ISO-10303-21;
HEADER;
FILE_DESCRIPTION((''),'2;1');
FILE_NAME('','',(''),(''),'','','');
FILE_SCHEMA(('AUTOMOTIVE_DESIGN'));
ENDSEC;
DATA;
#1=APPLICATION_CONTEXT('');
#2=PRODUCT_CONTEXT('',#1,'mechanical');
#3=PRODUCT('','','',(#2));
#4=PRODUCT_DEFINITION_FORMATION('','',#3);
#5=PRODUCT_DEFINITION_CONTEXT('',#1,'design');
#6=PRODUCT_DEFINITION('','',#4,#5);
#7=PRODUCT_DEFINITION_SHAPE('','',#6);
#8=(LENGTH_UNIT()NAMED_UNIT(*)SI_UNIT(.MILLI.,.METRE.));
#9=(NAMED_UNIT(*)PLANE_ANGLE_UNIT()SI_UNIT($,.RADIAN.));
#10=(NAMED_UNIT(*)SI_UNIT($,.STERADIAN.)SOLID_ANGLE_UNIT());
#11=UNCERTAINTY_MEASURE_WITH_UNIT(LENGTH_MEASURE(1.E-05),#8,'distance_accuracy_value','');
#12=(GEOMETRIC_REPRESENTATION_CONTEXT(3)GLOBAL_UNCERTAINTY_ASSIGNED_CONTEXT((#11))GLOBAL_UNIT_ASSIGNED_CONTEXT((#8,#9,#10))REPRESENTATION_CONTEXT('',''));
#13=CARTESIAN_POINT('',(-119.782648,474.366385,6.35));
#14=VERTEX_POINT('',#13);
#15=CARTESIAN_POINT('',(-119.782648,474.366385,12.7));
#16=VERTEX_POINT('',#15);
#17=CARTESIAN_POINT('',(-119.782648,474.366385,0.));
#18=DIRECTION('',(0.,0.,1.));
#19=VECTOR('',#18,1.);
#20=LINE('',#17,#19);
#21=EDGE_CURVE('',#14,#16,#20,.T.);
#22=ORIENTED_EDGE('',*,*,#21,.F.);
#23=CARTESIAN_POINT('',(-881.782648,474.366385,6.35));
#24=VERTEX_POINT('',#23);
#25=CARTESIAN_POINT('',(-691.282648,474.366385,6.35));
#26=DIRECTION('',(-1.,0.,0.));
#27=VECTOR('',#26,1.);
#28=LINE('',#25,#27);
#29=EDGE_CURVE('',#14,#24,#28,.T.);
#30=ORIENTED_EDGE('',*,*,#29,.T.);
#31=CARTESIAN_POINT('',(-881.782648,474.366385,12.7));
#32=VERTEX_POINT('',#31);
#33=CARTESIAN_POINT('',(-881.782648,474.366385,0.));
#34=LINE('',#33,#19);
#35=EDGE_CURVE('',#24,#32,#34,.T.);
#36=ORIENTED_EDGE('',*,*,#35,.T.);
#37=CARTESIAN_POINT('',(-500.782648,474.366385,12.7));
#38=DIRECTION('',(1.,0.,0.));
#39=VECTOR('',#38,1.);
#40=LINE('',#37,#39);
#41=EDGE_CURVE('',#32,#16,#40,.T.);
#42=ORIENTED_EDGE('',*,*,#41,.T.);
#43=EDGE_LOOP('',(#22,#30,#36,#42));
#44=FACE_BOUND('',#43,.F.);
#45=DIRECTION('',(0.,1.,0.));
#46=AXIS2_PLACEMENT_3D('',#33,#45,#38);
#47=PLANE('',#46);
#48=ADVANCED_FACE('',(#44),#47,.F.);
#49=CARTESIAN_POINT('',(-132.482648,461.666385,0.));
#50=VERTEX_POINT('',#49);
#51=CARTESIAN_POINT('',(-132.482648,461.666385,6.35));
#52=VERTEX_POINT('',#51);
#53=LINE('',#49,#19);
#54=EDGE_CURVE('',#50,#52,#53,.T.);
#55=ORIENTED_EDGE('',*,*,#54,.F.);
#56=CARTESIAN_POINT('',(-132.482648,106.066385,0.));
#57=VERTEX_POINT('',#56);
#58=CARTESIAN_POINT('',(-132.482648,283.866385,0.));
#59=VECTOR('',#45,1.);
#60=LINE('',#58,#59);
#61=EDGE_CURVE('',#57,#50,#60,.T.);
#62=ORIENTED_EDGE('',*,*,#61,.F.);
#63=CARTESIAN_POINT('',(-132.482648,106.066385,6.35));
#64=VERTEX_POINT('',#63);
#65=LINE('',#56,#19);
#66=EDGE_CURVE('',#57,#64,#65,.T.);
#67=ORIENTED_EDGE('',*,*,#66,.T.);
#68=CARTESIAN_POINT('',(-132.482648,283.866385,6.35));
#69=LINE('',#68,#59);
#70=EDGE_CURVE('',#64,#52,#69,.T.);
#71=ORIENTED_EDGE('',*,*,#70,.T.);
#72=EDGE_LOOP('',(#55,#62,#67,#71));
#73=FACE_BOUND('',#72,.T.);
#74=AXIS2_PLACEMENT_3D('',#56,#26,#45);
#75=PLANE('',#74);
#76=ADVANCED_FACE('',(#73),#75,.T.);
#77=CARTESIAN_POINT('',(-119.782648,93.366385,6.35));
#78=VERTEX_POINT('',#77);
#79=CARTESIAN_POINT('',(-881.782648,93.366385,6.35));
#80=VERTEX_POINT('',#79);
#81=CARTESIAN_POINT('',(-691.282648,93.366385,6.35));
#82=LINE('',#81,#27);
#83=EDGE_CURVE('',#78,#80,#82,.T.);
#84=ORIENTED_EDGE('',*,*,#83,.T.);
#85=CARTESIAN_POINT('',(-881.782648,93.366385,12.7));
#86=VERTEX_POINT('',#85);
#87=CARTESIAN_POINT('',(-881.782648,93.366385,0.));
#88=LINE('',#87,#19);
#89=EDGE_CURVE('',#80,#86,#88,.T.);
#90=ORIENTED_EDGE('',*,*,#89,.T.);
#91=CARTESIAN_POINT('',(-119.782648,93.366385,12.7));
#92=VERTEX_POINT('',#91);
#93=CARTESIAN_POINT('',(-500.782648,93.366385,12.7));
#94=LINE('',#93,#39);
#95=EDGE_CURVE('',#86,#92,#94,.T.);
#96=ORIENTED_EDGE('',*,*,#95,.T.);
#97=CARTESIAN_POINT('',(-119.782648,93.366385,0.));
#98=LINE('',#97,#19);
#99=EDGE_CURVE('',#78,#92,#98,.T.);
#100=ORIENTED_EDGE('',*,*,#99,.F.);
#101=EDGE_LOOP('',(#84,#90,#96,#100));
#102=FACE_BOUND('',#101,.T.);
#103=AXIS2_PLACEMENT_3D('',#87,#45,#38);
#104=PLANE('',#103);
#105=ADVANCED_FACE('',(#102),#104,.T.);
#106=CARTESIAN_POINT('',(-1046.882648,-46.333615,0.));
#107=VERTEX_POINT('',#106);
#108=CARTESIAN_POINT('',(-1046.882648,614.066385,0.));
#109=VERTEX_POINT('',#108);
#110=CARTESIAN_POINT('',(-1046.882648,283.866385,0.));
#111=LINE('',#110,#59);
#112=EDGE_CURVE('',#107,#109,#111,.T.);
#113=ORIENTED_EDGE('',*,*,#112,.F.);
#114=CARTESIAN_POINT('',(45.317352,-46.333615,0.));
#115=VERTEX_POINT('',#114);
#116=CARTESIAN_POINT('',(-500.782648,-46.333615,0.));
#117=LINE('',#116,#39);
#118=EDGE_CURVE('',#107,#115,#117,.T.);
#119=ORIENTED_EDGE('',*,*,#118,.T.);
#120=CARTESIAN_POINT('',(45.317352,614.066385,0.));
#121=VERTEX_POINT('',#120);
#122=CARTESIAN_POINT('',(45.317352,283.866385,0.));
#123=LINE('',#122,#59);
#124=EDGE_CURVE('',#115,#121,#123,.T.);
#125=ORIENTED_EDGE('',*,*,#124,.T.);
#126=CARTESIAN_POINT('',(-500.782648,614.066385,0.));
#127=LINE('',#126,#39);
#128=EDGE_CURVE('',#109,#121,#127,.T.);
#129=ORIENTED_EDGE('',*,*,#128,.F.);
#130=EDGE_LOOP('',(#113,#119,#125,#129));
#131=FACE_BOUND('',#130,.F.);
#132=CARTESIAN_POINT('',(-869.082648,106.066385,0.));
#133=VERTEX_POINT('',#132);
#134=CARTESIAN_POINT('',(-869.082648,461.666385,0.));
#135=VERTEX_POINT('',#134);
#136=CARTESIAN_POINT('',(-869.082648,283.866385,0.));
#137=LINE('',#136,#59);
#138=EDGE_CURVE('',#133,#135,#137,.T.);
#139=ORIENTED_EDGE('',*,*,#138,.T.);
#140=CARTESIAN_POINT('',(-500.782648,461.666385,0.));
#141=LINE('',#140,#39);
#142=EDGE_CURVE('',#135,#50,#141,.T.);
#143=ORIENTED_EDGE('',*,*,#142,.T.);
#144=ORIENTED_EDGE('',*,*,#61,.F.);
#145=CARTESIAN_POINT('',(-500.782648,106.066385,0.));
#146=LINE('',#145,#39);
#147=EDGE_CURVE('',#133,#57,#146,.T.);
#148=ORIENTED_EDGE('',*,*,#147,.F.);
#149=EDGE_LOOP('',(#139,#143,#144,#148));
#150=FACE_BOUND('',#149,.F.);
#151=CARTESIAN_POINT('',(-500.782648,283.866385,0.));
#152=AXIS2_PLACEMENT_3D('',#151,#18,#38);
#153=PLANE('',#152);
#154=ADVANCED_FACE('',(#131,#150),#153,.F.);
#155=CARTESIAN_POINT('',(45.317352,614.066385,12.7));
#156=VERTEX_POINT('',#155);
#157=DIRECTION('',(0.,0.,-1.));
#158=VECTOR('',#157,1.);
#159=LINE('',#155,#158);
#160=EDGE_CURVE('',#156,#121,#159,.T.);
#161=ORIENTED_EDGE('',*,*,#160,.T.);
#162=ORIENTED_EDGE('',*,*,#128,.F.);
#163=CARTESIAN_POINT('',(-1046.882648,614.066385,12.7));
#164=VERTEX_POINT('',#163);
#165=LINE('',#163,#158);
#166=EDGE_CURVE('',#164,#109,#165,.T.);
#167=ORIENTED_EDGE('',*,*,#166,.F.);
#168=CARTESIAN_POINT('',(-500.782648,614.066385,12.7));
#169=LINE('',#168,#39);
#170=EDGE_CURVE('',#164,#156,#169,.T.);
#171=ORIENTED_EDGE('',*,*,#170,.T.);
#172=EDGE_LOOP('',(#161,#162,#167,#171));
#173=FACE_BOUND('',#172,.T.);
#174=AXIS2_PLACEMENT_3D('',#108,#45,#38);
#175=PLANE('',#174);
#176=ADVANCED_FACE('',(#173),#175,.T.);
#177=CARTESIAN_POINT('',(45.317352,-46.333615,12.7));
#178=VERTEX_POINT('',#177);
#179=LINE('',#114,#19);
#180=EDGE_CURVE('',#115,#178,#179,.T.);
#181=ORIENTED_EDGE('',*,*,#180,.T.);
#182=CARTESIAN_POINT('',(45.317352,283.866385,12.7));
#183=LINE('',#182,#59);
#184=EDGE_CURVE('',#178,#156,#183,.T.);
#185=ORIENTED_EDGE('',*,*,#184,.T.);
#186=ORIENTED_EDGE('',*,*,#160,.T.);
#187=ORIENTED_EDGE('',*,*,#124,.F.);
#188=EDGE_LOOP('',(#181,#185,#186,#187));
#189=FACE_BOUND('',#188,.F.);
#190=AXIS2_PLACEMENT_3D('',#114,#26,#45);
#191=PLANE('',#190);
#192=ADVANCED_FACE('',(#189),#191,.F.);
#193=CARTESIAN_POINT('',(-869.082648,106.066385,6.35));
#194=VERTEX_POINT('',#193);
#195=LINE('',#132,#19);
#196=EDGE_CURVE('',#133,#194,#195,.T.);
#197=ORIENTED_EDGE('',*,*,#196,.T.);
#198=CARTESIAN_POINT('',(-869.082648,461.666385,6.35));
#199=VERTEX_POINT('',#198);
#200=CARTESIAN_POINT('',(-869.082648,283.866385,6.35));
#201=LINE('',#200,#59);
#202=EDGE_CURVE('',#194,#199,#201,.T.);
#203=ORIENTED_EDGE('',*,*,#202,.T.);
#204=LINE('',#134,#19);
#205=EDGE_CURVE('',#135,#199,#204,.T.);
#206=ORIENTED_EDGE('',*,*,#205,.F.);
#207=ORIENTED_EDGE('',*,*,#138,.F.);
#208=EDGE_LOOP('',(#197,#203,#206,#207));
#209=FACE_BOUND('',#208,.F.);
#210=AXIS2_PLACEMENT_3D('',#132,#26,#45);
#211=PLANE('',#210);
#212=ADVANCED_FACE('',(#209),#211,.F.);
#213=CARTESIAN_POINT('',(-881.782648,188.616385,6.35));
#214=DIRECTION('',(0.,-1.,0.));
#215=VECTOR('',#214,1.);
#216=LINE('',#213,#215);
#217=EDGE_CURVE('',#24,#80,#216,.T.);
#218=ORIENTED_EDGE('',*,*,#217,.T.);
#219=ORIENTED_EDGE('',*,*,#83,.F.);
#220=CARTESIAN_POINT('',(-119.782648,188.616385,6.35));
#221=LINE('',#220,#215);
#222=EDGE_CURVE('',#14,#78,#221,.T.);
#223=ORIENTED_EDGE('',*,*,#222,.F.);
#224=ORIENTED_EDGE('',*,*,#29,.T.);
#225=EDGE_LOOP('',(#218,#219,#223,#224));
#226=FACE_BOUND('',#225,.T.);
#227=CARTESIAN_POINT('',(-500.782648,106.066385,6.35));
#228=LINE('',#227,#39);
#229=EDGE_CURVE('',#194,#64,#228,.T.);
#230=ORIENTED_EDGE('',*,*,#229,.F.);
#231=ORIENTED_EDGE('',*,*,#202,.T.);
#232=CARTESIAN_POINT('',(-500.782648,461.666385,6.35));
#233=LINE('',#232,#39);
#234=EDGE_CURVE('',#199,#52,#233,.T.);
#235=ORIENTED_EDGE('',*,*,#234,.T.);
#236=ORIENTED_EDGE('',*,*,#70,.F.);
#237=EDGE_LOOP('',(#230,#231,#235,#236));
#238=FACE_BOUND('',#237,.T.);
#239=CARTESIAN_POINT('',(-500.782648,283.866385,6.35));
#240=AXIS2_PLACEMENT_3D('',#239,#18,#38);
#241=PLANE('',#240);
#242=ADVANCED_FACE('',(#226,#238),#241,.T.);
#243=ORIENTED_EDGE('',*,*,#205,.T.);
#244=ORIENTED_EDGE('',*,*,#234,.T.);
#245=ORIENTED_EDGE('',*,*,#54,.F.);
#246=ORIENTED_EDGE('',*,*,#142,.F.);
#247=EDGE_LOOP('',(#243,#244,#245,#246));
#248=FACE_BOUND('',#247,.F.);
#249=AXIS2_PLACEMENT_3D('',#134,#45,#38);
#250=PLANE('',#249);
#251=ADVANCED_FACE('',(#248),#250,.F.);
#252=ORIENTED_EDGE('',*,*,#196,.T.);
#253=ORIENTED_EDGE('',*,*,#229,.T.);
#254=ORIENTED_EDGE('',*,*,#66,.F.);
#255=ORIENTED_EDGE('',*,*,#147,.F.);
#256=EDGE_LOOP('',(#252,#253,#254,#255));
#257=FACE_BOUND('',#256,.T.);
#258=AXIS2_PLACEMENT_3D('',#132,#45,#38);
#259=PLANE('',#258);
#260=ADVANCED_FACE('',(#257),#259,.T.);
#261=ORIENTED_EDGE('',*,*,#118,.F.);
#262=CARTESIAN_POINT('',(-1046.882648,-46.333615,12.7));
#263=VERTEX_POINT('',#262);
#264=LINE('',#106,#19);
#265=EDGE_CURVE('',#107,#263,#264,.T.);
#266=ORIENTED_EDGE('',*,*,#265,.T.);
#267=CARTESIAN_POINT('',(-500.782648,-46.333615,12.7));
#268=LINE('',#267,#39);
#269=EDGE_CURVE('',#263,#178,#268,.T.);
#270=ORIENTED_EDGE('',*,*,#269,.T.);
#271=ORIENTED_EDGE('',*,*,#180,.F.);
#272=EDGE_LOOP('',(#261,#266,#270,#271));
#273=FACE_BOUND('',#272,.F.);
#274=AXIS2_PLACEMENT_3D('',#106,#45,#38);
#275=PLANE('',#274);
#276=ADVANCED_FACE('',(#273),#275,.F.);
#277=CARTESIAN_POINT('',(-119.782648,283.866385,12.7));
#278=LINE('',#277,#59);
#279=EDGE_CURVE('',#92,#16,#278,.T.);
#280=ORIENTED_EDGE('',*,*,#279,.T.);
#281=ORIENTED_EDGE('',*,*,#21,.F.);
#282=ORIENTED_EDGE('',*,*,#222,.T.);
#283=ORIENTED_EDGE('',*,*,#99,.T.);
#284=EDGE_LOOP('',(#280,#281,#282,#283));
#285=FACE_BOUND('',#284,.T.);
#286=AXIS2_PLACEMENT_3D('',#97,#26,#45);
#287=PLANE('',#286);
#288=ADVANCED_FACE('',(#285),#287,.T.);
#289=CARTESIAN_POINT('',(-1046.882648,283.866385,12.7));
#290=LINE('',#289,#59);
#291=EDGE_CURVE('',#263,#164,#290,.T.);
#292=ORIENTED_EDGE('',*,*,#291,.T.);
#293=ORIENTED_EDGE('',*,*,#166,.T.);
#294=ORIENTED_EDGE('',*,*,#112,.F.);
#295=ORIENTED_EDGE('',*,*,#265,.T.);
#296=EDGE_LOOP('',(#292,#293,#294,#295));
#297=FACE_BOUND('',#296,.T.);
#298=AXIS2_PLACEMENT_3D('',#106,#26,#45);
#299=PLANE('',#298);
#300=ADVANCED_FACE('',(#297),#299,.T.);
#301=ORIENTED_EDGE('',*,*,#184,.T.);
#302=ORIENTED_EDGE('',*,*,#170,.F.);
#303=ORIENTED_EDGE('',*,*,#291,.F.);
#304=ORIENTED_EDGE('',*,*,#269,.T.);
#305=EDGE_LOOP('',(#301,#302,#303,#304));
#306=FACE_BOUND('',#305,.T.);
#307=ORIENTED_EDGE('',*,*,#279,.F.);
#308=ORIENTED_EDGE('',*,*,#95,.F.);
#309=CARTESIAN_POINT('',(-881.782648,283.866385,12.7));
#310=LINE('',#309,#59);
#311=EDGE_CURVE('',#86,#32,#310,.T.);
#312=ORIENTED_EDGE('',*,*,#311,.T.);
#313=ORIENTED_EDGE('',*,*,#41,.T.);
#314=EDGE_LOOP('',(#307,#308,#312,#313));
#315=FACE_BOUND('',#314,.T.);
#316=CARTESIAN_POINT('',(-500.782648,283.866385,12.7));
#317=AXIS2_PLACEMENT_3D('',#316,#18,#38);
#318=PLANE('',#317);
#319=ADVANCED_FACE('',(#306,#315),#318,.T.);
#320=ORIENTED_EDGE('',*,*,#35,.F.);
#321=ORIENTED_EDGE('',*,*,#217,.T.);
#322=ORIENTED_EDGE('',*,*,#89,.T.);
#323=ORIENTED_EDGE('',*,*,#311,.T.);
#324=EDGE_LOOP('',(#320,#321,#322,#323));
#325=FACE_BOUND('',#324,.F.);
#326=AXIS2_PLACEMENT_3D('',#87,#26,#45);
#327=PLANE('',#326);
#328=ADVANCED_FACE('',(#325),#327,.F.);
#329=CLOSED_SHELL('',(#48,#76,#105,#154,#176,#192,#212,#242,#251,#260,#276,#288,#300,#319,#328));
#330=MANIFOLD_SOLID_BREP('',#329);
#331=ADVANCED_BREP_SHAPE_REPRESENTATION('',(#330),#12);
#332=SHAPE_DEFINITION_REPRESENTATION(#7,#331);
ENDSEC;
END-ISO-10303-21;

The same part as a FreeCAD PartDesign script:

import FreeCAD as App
import Part
import Sketcher
from FreeCAD import Vector
Q = App.Units.Quantity


def add_polygon(sketch, points):
    """Adds a closed chain of lines whose ends are joined by coincident constraints."""
    first, n = sketch.GeometryCount, len(points)
    for a, b in zip(points, points[1:] + points[:1]):
        sketch.addGeometry(Part.LineSegment(App.Vector(*a, 0), App.Vector(*b, 0)), False)
    for i in range(n):
        sketch.addConstraint(Sketcher.Constraint("Coincident", first + i, 2, first + (i + 1) % n, 1))

doc = App.newDocument("Part")
body = doc.addObject("PartDesign::Body", "Body")

sketch1 = body.newObject("Sketcher::SketchObject", "Sketch")
sketch1.AttachmentSupport = (doc.getObject("XY_Plane"), [""])
sketch1.MapMode = "FlatFace"
add_polygon(sketch1, [(-1046.882648, 614.066385), (-1046.882648, -46.333615), (45.317352, -46.333615), (45.317352, 614.066385)])
add_polygon(sketch1, [(-132.482648, 106.066385), (-869.082648, 106.066385), (-869.082648, 461.666385), (-132.482648, 461.666385)])
sketch1.addConstraint([
    Sketcher.Constraint("Vertical", 0),
    Sketcher.Constraint("Horizontal", 1),
    Sketcher.Constraint("Vertical", 2),
    Sketcher.Constraint("Horizontal", 3),
    Sketcher.Constraint("Horizontal", 4),
    Sketcher.Constraint("Vertical", 5),
    Sketcher.Constraint("Horizontal", 6),
    Sketcher.Constraint("Vertical", 7),
    Sketcher.Constraint("DistanceX", 1, 1, 1, 2, Q("43 in")),
    Sketcher.Constraint("DistanceX", 4, 2, 4, 1, Q("29 in")),
    Sketcher.Constraint("DistanceY", 0, 2, 0, 1, Q("26 in")),
    Sketcher.Constraint("DistanceY", 5, 1, 5, 2, Q("14 in")),
    Sketcher.Constraint("DistanceX", 0, 2, 4, 2, Q("7 in")),
    Sketcher.Constraint("DistanceY", 0, 2, 4, 2, Q("6 in")),
    Sketcher.Constraint("DistanceX", 0, 2, -1, 1, Q("1046.882648 mm")),
    Sketcher.Constraint("DistanceY", 0, 2, -1, 1, Q("46.333615 mm")),
])
pad1 = body.newObject("PartDesign::Pad", "Pad")
pad1.Profile = sketch1
pad1.Length = Q("0.25 in")

sketch2 = body.newObject("Sketcher::SketchObject", "Sketch001")
sketch2.AttachmentSupport = (doc.getObject("XY_Plane"), [""])
sketch2.MapMode = "FlatFace"
add_polygon(sketch2, [(-1046.882648, 614.066385), (-1046.882648, -46.333615), (45.317352, -46.333615), (45.317352, 614.066385)])
add_polygon(sketch2, [(-119.782648, 93.366385), (-881.782648, 93.366385), (-881.782648, 474.366385), (-119.782648, 474.366385)])
sketch2.addConstraint([
    Sketcher.Constraint("Vertical", 0),
    Sketcher.Constraint("Horizontal", 1),
    Sketcher.Constraint("Vertical", 2),
    Sketcher.Constraint("Horizontal", 3),
    Sketcher.Constraint("Horizontal", 4),
    Sketcher.Constraint("Vertical", 5),
    Sketcher.Constraint("Horizontal", 6),
    Sketcher.Constraint("Vertical", 7),
    Sketcher.Constraint("DistanceX", 1, 1, 1, 2, Q("43 in")),
    Sketcher.Constraint("DistanceX", 4, 2, 4, 1, Q("30 in")),
    Sketcher.Constraint("DistanceY", 0, 2, 0, 1, Q("26 in")),
    Sketcher.Constraint("DistanceY", 5, 1, 5, 2, Q("15 in")),
    Sketcher.Constraint("DistanceX", 0, 2, 4, 2, Q("6.5 in")),
    Sketcher.Constraint("DistanceY", 0, 2, 4, 2, Q("5.5 in")),
    Sketcher.Constraint("DistanceX", 0, 2, -1, 1, Q("1046.882648 mm")),
    Sketcher.Constraint("DistanceY", 0, 2, -1, 1, Q("46.333615 mm")),
])
pad2 = body.newObject("PartDesign::Pad", "Pad001")
pad2.Profile = sketch2
pad2.Length = Q("0.5 in")

doc.recompute()
